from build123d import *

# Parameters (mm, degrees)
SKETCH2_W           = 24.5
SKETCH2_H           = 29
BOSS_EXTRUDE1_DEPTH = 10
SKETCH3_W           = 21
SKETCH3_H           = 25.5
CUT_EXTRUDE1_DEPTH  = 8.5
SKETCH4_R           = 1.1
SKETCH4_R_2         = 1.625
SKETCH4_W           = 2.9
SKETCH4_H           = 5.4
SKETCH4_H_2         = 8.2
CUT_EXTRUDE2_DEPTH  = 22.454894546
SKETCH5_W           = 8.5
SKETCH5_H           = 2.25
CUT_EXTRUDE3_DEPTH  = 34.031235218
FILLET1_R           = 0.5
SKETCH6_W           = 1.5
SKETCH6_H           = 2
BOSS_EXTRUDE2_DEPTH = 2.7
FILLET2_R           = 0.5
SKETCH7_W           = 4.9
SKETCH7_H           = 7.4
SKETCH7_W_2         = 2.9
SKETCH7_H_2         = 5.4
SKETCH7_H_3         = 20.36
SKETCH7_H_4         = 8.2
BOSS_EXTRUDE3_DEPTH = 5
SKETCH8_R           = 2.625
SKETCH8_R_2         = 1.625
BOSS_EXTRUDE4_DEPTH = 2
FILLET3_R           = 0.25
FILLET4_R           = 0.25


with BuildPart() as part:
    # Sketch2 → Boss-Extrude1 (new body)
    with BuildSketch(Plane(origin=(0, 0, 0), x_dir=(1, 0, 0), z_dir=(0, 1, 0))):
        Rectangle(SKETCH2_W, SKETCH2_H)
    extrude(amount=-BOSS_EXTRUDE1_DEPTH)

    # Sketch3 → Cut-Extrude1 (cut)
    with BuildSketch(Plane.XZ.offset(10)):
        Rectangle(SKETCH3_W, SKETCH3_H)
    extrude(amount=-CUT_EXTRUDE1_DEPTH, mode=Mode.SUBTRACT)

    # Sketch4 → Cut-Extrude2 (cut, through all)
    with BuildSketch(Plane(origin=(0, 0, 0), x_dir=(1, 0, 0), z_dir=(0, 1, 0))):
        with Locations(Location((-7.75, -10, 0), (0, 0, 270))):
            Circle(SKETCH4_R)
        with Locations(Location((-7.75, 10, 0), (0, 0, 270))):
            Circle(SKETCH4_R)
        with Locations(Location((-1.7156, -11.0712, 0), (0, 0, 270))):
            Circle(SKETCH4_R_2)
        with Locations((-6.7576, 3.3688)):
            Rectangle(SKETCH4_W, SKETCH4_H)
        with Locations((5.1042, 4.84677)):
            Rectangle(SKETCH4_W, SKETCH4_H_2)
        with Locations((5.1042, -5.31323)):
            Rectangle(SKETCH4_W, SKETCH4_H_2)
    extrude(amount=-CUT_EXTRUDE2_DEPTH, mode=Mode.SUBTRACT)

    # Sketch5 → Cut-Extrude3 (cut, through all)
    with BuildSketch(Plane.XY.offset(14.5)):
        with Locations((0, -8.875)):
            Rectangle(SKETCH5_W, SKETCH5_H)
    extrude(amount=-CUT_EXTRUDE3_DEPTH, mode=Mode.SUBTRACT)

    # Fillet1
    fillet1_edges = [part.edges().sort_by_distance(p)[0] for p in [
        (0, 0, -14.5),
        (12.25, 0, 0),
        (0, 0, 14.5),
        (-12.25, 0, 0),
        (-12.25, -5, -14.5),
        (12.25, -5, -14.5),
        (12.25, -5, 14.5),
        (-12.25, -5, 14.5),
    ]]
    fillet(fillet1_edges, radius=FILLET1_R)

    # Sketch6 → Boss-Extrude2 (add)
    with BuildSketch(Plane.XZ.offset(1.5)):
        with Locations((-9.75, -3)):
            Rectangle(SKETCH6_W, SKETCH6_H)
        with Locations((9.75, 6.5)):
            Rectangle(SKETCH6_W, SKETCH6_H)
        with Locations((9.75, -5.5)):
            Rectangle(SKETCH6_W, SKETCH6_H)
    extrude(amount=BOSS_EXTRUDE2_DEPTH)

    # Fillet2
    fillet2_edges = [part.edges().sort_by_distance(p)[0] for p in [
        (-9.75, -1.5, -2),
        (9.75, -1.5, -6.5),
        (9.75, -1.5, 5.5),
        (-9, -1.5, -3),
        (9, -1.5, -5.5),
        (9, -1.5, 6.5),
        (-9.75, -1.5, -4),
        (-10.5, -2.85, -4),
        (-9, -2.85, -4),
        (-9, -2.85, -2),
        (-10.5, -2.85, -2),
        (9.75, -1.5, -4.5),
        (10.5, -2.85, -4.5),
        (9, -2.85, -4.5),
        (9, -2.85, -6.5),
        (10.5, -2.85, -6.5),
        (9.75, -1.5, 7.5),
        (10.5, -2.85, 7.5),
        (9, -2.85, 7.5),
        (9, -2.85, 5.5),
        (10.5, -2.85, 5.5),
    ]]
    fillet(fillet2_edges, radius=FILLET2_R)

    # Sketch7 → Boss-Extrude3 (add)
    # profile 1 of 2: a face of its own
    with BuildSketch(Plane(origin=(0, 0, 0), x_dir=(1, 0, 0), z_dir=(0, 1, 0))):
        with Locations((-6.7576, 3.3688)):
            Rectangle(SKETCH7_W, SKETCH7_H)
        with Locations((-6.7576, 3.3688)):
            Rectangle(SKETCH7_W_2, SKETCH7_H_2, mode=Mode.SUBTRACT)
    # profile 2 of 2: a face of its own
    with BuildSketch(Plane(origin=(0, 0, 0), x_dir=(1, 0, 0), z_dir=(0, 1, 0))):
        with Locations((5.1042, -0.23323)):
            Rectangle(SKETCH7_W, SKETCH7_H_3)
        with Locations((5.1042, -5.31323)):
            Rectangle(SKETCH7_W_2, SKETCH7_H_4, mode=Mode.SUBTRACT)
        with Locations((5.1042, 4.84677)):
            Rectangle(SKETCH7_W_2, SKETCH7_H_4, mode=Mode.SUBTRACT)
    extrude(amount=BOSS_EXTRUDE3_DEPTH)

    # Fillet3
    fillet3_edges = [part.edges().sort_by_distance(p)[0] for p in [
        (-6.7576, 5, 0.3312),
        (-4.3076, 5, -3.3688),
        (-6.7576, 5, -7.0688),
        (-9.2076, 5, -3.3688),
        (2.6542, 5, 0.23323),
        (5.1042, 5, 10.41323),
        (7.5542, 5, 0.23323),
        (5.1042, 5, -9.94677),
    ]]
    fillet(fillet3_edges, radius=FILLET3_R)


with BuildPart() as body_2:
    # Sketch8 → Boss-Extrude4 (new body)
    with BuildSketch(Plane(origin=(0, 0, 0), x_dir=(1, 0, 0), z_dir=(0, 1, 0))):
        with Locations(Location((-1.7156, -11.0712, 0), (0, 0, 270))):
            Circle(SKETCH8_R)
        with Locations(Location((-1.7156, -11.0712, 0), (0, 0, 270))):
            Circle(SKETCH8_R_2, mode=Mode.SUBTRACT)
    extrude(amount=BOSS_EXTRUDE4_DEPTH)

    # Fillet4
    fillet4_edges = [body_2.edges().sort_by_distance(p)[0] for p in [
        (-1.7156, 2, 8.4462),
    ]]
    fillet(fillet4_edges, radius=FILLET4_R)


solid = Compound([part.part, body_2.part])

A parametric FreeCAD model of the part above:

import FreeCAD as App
import Part
import Sketcher
from FreeCAD import Vector
Q = App.Units.Quantity


def edges_at(feature, points):
    """Names of the edges that pass closest to the given points."""
    edges = feature.Shape.Edges
    near = lambda p: min(range(len(edges)), key=lambda i: edges[i].distToShape(Part.Vertex(*p))[0])
    return sorted({f"Edge{near(p) + 1}" for p in points})


def add_polygon(sketch, points):
    """Adds a closed chain of lines whose ends are joined by coincident constraints."""
    first, n = sketch.GeometryCount, len(points)
    for a, b in zip(points, points[1:] + points[:1]):
        sketch.addGeometry(Part.LineSegment(App.Vector(*a, 0), App.Vector(*b, 0)), False)
    for i in range(n):
        sketch.addConstraint(Sketcher.Constraint("Coincident", first + i, 2, first + (i + 1) % n, 1))

doc = App.newDocument("Part")
params = doc.addObject("Spreadsheet::Sheet", "Params")
for row, (alias, value) in enumerate([
    ("sketch1_height", "29 mm"),
    ("sketch1_width", "24.5 mm"),
    ("pad1_length", "10 mm"),
    ("sketch2_width", "21 mm"),
    ("sketch2_height", "25.5 mm"),
    ("pocket1_length", "8.5 mm"),
    ("sketch3_diameter", "2.2 mm"),
    ("sketch3_diameter2", "3.25 mm"),
    ("sketch3_width", "2.9 mm"),
    ("sketch3_height", "5.4 mm"),
    ("sketch3_height2", "8.2 mm"),
    ("sketch4_width", "8.5 mm"),
    ("sketch4_height", "2.25 mm"),
    ("fillet_radius", "0.5 mm"),
    ("sketch5_height", "2 mm"),
    ("sketch5_width", "1.5 mm"),
    ("pad2_length", "2.7 mm"),
    ("fillet2_radius", "0.5 mm"),
    ("sketch6_width", "4.9 mm"),
    ("sketch6_width2", "2.9 mm"),
    ("sketch6_height", "7.4 mm"),
    ("sketch6_height2", "5.4 mm"),
    ("sketch6_height3", "8.2 mm"),
    ("pad3_length", "5 mm"),
    ("fillet3_radius", "0.25 mm"),
    ("sketch7_diameter", "5.25 mm"),
    ("sketch7_diameter2", "3.25 mm"),
    ("pad4_length", "2 mm"),
    ("fillet4_radius", "0.25 mm"),
], start=1):
    params.set(f"A{row}", alias)
    params.set(f"B{row}", "=" + value)
    params.setAlias(f"B{row}", alias)

body = doc.addObject("PartDesign::Body", "Body")

# Sketch on XZ plane
sketch1 = body.newObject("Sketcher::SketchObject", "Sketch")
sketch1.AttachmentSupport = (doc.getObject("XZ_Plane"), [""])
sketch1.MapMode = "FlatFace"
add_polygon(sketch1, [(-12, -14), (-12, 14), (12, 14), (12, -14)])  # lines 0-3
sketch1.addConstraint([
    Sketcher.Constraint("Vertical", 0),
    Sketcher.Constraint("Horizontal", 1),
    Sketcher.Constraint("Vertical", 2),
    Sketcher.Constraint("Horizontal", 3),
    Sketcher.Constraint("Symmetric", 0, 2, 2, 2, -1, 1),
    Sketcher.Constraint("DistanceY", 0, 1, 0, 2, Q("29 mm")),
    Sketcher.Constraint("DistanceX", 1, 1, 1, 2, Q("24.5 mm")),
])
sketch1.setExpression("Constraints[9]", "Params.sketch1_height")
sketch1.setExpression("Constraints[10]", "Params.sketch1_width")
pad1 = body.newObject("PartDesign::Pad", "Pad")
pad1.Profile = sketch1
pad1.setExpression("Length", "Params.pad1_length")

# Sketch on XZ plane
sketch2 = body.newObject("Sketcher::SketchObject", "Sketch001")
sketch2.AttachmentSupport = (doc.getObject("XZ_Plane"), [""])
sketch2.MapMode = "FlatFace"
sketch2.AttachmentOffset = App.Placement(Vector(0, 0, 10), App.Rotation())
add_polygon(sketch2, [(-10, 13), (-10, -13), (10, -13), (10, 13)])  # lines 0-3
sketch2.addConstraint([
    Sketcher.Constraint("Vertical", 0),
    Sketcher.Constraint("Horizontal", 1),
    Sketcher.Constraint("Vertical", 2),
    Sketcher.Constraint("Horizontal", 3),
    Sketcher.Constraint("Symmetric", 0, 2, 2, 2, -1, 1),
    Sketcher.Constraint("DistanceX", 1, 1, 1, 2, Q("21 mm")),
    Sketcher.Constraint("DistanceY", 0, 2, 0, 1, Q("25.5 mm")),
])
sketch2.setExpression("Constraints[9]", "Params.sketch2_width")
sketch2.setExpression("Constraints[10]", "Params.sketch2_height")
pocket1 = body.newObject("PartDesign::Pocket", "Pocket")
pocket1.Profile = sketch2
pocket1.setExpression("Length", "Params.pocket1_length")

# Sketch on XZ plane
sketch3 = body.newObject("Sketcher::SketchObject", "Sketch002")
sketch3.AttachmentSupport = (doc.getObject("XZ_Plane"), [""])
sketch3.MapMode = "FlatFace"
sketch3.addGeometry(Part.Circle(Vector(-7.8, 10, 0), Vector(0, 0, 1), 1.1), False)  # 0
sketch3.addGeometry(Part.Circle(Vector(-7.8, -10, 0), Vector(0, 0, 1), 1.1), False)  # 1
sketch3.addGeometry(Part.Circle(Vector(-1.7, 11.1, 0), Vector(0, 0, 1), 1.6), False)  # 2
add_polygon(sketch3, [(-8.2, -6.1), (-8.2, -0.7), (-5.3, -0.7), (-5.3, -6.1)])  # lines 3-6
add_polygon(sketch3, [(3.7, -8.9), (3.7, -0.7), (6.6, -0.7), (6.6, -8.9)])  # lines 7-10
add_polygon(sketch3, [(3.7, 1.2), (3.7, 9.4), (6.6, 9.4), (6.6, 1.2)])  # lines 11-14
sketch3.addConstraint([
    Sketcher.Constraint("Vertical", 3),
    Sketcher.Constraint("Horizontal", 4),
    Sketcher.Constraint("Vertical", 5),
    Sketcher.Constraint("Horizontal", 6),
    Sketcher.Constraint("Vertical", 7),
    Sketcher.Constraint("Horizontal", 8),
    Sketcher.Constraint("Vertical", 9),
    Sketcher.Constraint("Horizontal", 10),
    Sketcher.Constraint("Vertical", 11),
    Sketcher.Constraint("Horizontal", 12),
    Sketcher.Constraint("Vertical", 13),
    Sketcher.Constraint("Horizontal", 14),
    Sketcher.Constraint("Equal", 0, 1),
    Sketcher.Constraint("Symmetric", 0, 3, 1, 3, -1),
    Sketcher.Constraint("Vertical", 10, 2, 11, 2),
    Sketcher.Constraint("Vertical", 9, 2, 12, 2),
    Sketcher.Constraint("Equal", 6, 8),
    Sketcher.Constraint("Equal", 9, 11),
    Sketcher.Constraint("Diameter", 0, Q("2.2 mm")),
    Sketcher.Constraint("Diameter", 2, Q("3.25 mm")),
    Sketcher.Constraint("DistanceX", 4, 1, 4, 2, Q("2.9 mm")),
    Sketcher.Constraint("DistanceY", 3, 1, 3, 2, Q("5.4 mm")),
    Sketcher.Constraint("DistanceY", 7, 1, 7, 2, Q("8.2 mm")),
    Sketcher.Constraint("DistanceY", -1, 1, 0, 3, Q("10 mm")),
    Sketcher.Constraint("DistanceX", 0, 3, -1, 1, Q("7.75 mm")),
    Sketcher.Constraint("DistanceY", 3, 2, 2, 3, Q("11.74 mm")),
    Sketcher.Constraint("DistanceY", 7, 2, 11, 2, Q("10.16 mm")),
    Sketcher.Constraint("DistanceX", 3, 2, 2, 3, Q("6.492 mm")),
    Sketcher.Constraint("DistanceX", 2, 3, -1, 1, Q("1.7156 mm")),
    Sketcher.Constraint("DistanceY", -1, 1, 2, 3, Q("11.0712 mm")),
    Sketcher.Constraint("DistanceX", -1, 1, 7, 2, Q("3.6542 mm")),
    Sketcher.Constraint("DistanceY", 7, 2, -1, 1, Q("0.74677 mm")),
])
sketch3.setExpression("Constraints[30]", "Params.sketch3_diameter")
sketch3.setExpression("Constraints[31]", "Params.sketch3_diameter2")
sketch3.setExpression("Constraints[32]", "Params.sketch3_width")
sketch3.setExpression("Constraints[33]", "Params.sketch3_height")
sketch3.setExpression("Constraints[34]", "Params.sketch3_height2")
pocket2 = body.newObject("PartDesign::Pocket", "Pocket001")
pocket2.Profile = sketch3
pocket2.Type = "ThroughAll"
pocket2.Reversed = True

# Sketch on XY plane
sketch4 = body.newObject("Sketcher::SketchObject", "Sketch003")
sketch4.AttachmentSupport = (doc.getObject("XY_Plane"), [""])
sketch4.MapMode = "FlatFace"
sketch4.AttachmentOffset = App.Placement(Vector(0, 0, 14.5), App.Rotation())
add_polygon(sketch4, [(-4.2, -7.8), (-4.2, -10), (4.2, -10), (4.2, -7.8)])  # lines 0-3
sketch4.addConstraint([
    Sketcher.Constraint("Vertical", 0),
    Sketcher.Constraint("Horizontal", 1),
    Sketcher.Constraint("Vertical", 2),
    Sketcher.Constraint("Horizontal", 3),
    Sketcher.Constraint("DistanceX", 1, 1, 1, 2, Q("8.5 mm")),
    Sketcher.Constraint("DistanceY", 0, 2, -1, 1, Q("10 mm")),
    Sketcher.Constraint("DistanceY", 0, 2, 0, 1, Q("2.25 mm")),
    Sketcher.Constraint("DistanceX", 0, 2, -1, 1, Q("4.25 mm")),
])
sketch4.setExpression("Constraints[8]", "Params.sketch4_width")
sketch4.setExpression("Constraints[10]", "Params.sketch4_height")
pocket3 = body.newObject("PartDesign::Pocket", "Pocket002")
pocket3.Profile = sketch4
pocket3.Type = "ThroughAll"
doc.recompute()

fillet = body.newObject("PartDesign::Fillet", "Fillet")
fillet.Base = (pocket3, edges_at(pocket3, [
    (0, 0, -14.5),
    (12.25, 0, 0),
    (0, 0, 14.5),
    (-12.25, 0, 0),
    (-12.25, -5, -14.5),
    (12.25, -5, -14.5),
    (12.25, -5, 14.5),
    (-12.25, -5, 14.5),
]))
fillet.setExpression("Radius", "Params.fillet_radius")

# Sketch on XZ plane
sketch5 = body.newObject("Sketcher::SketchObject", "Sketch004")
sketch5.AttachmentSupport = (doc.getObject("XZ_Plane"), [""])
sketch5.MapMode = "FlatFace"
sketch5.AttachmentOffset = App.Placement(Vector(0, 0, 1.5), App.Rotation())
add_polygon(sketch5, [(-10.5, -2), (-10.5, -4), (-9, -4), (-9, -2)])  # lines 0-3
add_polygon(sketch5, [(9, 7.5), (9, 5.5), (10.5, 5.5), (10.5, 7.5)])  # lines 4-7
add_polygon(sketch5, [(9, -4.5), (9, -6.5), (10.5, -6.5), (10.5, -4.5)])  # lines 8-11
sketch5.addConstraint([
    Sketcher.Constraint("Vertical", 0),
    Sketcher.Constraint("Horizontal", 1),
    Sketcher.Constraint("Vertical", 2),
    Sketcher.Constraint("Horizontal", 3),
    Sketcher.Constraint("Vertical", 4),
    Sketcher.Constraint("Horizontal", 5),
    Sketcher.Constraint("Vertical", 6),
    Sketcher.Constraint("Horizontal", 7),
    Sketcher.Constraint("Vertical", 8),
    Sketcher.Constraint("Horizontal", 9),
    Sketcher.Constraint("Vertical", 10),
    Sketcher.Constraint("Horizontal", 11),
    Sketcher.Constraint("Vertical", 7, 2, 8, 2),
    Sketcher.Constraint("Vertical", 6, 2, 9, 2),
    Sketcher.Constraint("Equal", 3, 5),
    Sketcher.Constraint("Equal", 2, 4),
    Sketcher.Constraint("Equal", 6, 8),
    Sketcher.Constraint("DistanceY", 0, 2, 0, 1, Q("2 mm")),
    Sketcher.Constraint("DistanceX", 1, 1, 1, 2, Q("1.5 mm")),
    Sketcher.Constraint("DistanceY", 0, 2, -1, 1, Q("4 mm")),
    Sketcher.Constraint("DistanceX", 1, 2, -1, 1, Q("9 mm")),
    Sketcher.Constraint("DistanceX", -1, 1, 4, 2, Q("9 mm")),
    Sketcher.Constraint("DistanceY", 8, 2, 4, 2, Q("12 mm")),
    Sketcher.Constraint("DistanceY", -1, 1, 4, 2, Q("5.5 mm")),
])
sketch5.setExpression("Constraints[29]", "Params.sketch5_height")
sketch5.setExpression("Constraints[30]", "Params.sketch5_width")
pad2 = body.newObject("PartDesign::Pad", "Pad001")
pad2.Profile = sketch5
pad2.setExpression("Length", "Params.pad2_length")
doc.recompute()

fillet2 = body.newObject("PartDesign::Fillet", "Fillet001")
fillet2.Base = (pad2, edges_at(pad2, [
    (-9.75, -1.5, -2),
    (9.75, -1.5, -6.5),
    (9.75, -1.5, 5.5),
    (-9, -1.5, -3),
    (9, -1.5, -5.5),
    (9, -1.5, 6.5),
    (-9.75, -1.5, -4),
    (-10.5, -2.85, -4),
    (-9, -2.85, -4),
    (-9, -2.85, -2),
    (-10.5, -2.85, -2),
    (9.75, -1.5, -4.5),
    (10.5, -2.85, -4.5),
    (9, -2.85, -4.5),
    (9, -2.85, -6.5),
    (10.5, -2.85, -6.5),
    (9.75, -1.5, 7.5),
    (10.5, -2.85, 7.5),
    (9, -2.85, 7.5),
    (9, -2.85, 5.5),
    (10.5, -2.85, 5.5),
]))
fillet2.setExpression("Radius", "Params.fillet2_radius")

# Sketch on XZ plane
sketch6 = body.newObject("Sketcher::SketchObject", "Sketch005")
sketch6.AttachmentSupport = (doc.getObject("XZ_Plane"), [""])
sketch6.MapMode = "FlatFace"
add_polygon(sketch6, [(-9.2, -7.1), (-9.2, 0.3), (-4.3, 0.3), (-4.3, -7.1)])  # lines 0-3
add_polygon(sketch6, [(-5.3, -0.7), (-8.2, -0.7), (-8.2, -6.1), (-5.3, -6.1)])  # lines 4-7
add_polygon(sketch6, [(2.7, -9.9), (2.7, 10.4), (7.6, 10.4), (7.6, -9.9)])  # lines 8-11
add_polygon(sketch6, [(6.6, 9.4), (3.7, 9.4), (3.7, 1.2), (6.6, 1.2)])  # lines 12-15
add_polygon(sketch6, [(6.6, -0.7), (3.7, -0.7), (3.7, -8.9), (6.6, -8.9)])  # lines 16-19
sketch6.addConstraint([
    Sketcher.Constraint("Vertical", 0),
    Sketcher.Constraint("Horizontal", 1),
    Sketcher.Constraint("Vertical", 2),
    Sketcher.Constraint("Horizontal", 3),
    Sketcher.Constraint("Horizontal", 4),
    Sketcher.Constraint("Vertical", 5),
    Sketcher.Constraint("Horizontal", 6),
    Sketcher.Constraint("Vertical", 7),
    Sketcher.Constraint("Vertical", 8),
    Sketcher.Constraint("Horizontal", 9),
    Sketcher.Constraint("Vertical", 10),
    Sketcher.Constraint("Horizontal", 11),
    Sketcher.Constraint("Horizontal", 12),
    Sketcher.Constraint("Vertical", 13),
    Sketcher.Constraint("Horizontal", 14),
    Sketcher.Constraint("Vertical", 15),
    Sketcher.Constraint("Horizontal", 16),
    Sketcher.Constraint("Vertical", 17),
    Sketcher.Constraint("Horizontal", 18),
    Sketcher.Constraint("Vertical", 19),
    Sketcher.Constraint("Vertical", 13, 2, 16, 2),
    Sketcher.Constraint("Vertical", 15, 2, 18, 2),
    Sketcher.Constraint("Equal", 3, 9),
    Sketcher.Constraint("Equal", 6, 12),
    Sketcher.Constraint("Equal", 15, 17),
    Sketcher.Constraint("DistanceX", 1, 1, 1, 2, Q("4.9 mm")),
    Sketcher.Constraint("DistanceX", 4, 2, 4, 1, Q("2.9 mm")),
    Sketcher.Constraint("DistanceY", 0, 1, 0, 2, Q("7.4 mm")),
    Sketcher.Constraint("DistanceY", 5, 2, 5, 1, Q("5.4 mm")),
    Sketcher.Constraint("DistanceY", 13, 2, 13, 1, Q("8.2 mm")),
    Sketcher.Constraint("DistanceX", 0, 2, 4, 2, Q("1 mm")),
    Sketcher.Constraint("DistanceY", 4, 2, 0, 2, Q("1 mm")),
    Sketcher.Constraint("DistanceX", 8, 2, 12, 2, Q("1 mm")),
    Sketcher.Constraint("DistanceY", 12, 2, 8, 2, Q("1 mm")),
    Sketcher.Constraint("DistanceY", 11, 2, 17, 2, Q("1 mm")),
    Sketcher.Constraint("DistanceY", 8, 1, 8, 2, Q("20.36 mm")),
    Sketcher.Constraint("DistanceX", 0, 2, -1, 1, Q("9.2076 mm")),
    Sketcher.Constraint("DistanceY", -1, 1, 0, 2, Q("0.3312 mm")),
    Sketcher.Constraint("DistanceX", -1, 1, 8, 2, Q("2.6542 mm")),
    Sketcher.Constraint("DistanceY", -1, 1, 8, 2, Q("10.41323 mm")),
])
sketch6.setExpression("Constraints[45]", "Params.sketch6_width")
sketch6.setExpression("Constraints[46]", "Params.sketch6_width2")
sketch6.setExpression("Constraints[47]", "Params.sketch6_height")
sketch6.setExpression("Constraints[48]", "Params.sketch6_height2")
sketch6.setExpression("Constraints[49]", "Params.sketch6_height3")
pad3 = body.newObject("PartDesign::Pad", "Pad002")
pad3.Profile = sketch6
pad3.setExpression("Length", "Params.pad3_length")
pad3.Reversed = True
doc.recompute()

fillet3 = body.newObject("PartDesign::Fillet", "Fillet002")
fillet3.Base = (pad3, edges_at(pad3, [
    (-6.758, 5, 0.331),
    (-4.308, 5, -3.369),
    (-6.758, 5, -7.069),
    (-9.208, 5, -3.369),
    (2.654, 5, 0.233),
    (5.104, 5, 10.413),
    (7.554, 5, 0.233),
    (5.104, 5, -9.947),
]))
fillet3.setExpression("Radius", "Params.fillet3_radius")
body2 = doc.addObject("PartDesign::Body", "Body001")

# Sketch on XZ plane
sketch7 = body2.newObject("Sketcher::SketchObject", "Sketch006")
sketch7.AttachmentSupport = (doc.getObject("XZ_Plane001"), [""])
sketch7.MapMode = "FlatFace"
sketch7.addGeometry([
    Part.Circle(Vector(-1.7, 11.1, 0), Vector(0, 0, 1), 2.6),
    Part.Circle(Vector(-1.7, 11.1, 0), Vector(0, 0, 1), 1.6),
], False)
sketch7.addConstraint([
    Sketcher.Constraint("Coincident", 1, 3, 0, 3),
    Sketcher.Constraint("Diameter", 0, Q("5.25 mm")),
    Sketcher.Constraint("Diameter", 1, Q("3.25 mm")),
    Sketcher.Constraint("DistanceX", 0, 3, -1, 1, Q("1.7156 mm")),
    Sketcher.Constraint("DistanceY", -1, 1, 0, 3, Q("11.0712 mm")),
])
sketch7.setExpression("Constraints[1]", "Params.sketch7_diameter")
sketch7.setExpression("Constraints[2]", "Params.sketch7_diameter2")
pad4 = body2.newObject("PartDesign::Pad", "Pad003")
pad4.Profile = sketch7
pad4.setExpression("Length", "Params.pad4_length")
pad4.Reversed = True
doc.recompute()

fillet4 = body2.newObject("PartDesign::Fillet", "Fillet003")
fillet4.Base = (pad4, edges_at(pad4, [(-1.716, 2, 8.446)]))
fillet4.setExpression("Radius", "Params.fillet4_radius")

doc.recompute()
